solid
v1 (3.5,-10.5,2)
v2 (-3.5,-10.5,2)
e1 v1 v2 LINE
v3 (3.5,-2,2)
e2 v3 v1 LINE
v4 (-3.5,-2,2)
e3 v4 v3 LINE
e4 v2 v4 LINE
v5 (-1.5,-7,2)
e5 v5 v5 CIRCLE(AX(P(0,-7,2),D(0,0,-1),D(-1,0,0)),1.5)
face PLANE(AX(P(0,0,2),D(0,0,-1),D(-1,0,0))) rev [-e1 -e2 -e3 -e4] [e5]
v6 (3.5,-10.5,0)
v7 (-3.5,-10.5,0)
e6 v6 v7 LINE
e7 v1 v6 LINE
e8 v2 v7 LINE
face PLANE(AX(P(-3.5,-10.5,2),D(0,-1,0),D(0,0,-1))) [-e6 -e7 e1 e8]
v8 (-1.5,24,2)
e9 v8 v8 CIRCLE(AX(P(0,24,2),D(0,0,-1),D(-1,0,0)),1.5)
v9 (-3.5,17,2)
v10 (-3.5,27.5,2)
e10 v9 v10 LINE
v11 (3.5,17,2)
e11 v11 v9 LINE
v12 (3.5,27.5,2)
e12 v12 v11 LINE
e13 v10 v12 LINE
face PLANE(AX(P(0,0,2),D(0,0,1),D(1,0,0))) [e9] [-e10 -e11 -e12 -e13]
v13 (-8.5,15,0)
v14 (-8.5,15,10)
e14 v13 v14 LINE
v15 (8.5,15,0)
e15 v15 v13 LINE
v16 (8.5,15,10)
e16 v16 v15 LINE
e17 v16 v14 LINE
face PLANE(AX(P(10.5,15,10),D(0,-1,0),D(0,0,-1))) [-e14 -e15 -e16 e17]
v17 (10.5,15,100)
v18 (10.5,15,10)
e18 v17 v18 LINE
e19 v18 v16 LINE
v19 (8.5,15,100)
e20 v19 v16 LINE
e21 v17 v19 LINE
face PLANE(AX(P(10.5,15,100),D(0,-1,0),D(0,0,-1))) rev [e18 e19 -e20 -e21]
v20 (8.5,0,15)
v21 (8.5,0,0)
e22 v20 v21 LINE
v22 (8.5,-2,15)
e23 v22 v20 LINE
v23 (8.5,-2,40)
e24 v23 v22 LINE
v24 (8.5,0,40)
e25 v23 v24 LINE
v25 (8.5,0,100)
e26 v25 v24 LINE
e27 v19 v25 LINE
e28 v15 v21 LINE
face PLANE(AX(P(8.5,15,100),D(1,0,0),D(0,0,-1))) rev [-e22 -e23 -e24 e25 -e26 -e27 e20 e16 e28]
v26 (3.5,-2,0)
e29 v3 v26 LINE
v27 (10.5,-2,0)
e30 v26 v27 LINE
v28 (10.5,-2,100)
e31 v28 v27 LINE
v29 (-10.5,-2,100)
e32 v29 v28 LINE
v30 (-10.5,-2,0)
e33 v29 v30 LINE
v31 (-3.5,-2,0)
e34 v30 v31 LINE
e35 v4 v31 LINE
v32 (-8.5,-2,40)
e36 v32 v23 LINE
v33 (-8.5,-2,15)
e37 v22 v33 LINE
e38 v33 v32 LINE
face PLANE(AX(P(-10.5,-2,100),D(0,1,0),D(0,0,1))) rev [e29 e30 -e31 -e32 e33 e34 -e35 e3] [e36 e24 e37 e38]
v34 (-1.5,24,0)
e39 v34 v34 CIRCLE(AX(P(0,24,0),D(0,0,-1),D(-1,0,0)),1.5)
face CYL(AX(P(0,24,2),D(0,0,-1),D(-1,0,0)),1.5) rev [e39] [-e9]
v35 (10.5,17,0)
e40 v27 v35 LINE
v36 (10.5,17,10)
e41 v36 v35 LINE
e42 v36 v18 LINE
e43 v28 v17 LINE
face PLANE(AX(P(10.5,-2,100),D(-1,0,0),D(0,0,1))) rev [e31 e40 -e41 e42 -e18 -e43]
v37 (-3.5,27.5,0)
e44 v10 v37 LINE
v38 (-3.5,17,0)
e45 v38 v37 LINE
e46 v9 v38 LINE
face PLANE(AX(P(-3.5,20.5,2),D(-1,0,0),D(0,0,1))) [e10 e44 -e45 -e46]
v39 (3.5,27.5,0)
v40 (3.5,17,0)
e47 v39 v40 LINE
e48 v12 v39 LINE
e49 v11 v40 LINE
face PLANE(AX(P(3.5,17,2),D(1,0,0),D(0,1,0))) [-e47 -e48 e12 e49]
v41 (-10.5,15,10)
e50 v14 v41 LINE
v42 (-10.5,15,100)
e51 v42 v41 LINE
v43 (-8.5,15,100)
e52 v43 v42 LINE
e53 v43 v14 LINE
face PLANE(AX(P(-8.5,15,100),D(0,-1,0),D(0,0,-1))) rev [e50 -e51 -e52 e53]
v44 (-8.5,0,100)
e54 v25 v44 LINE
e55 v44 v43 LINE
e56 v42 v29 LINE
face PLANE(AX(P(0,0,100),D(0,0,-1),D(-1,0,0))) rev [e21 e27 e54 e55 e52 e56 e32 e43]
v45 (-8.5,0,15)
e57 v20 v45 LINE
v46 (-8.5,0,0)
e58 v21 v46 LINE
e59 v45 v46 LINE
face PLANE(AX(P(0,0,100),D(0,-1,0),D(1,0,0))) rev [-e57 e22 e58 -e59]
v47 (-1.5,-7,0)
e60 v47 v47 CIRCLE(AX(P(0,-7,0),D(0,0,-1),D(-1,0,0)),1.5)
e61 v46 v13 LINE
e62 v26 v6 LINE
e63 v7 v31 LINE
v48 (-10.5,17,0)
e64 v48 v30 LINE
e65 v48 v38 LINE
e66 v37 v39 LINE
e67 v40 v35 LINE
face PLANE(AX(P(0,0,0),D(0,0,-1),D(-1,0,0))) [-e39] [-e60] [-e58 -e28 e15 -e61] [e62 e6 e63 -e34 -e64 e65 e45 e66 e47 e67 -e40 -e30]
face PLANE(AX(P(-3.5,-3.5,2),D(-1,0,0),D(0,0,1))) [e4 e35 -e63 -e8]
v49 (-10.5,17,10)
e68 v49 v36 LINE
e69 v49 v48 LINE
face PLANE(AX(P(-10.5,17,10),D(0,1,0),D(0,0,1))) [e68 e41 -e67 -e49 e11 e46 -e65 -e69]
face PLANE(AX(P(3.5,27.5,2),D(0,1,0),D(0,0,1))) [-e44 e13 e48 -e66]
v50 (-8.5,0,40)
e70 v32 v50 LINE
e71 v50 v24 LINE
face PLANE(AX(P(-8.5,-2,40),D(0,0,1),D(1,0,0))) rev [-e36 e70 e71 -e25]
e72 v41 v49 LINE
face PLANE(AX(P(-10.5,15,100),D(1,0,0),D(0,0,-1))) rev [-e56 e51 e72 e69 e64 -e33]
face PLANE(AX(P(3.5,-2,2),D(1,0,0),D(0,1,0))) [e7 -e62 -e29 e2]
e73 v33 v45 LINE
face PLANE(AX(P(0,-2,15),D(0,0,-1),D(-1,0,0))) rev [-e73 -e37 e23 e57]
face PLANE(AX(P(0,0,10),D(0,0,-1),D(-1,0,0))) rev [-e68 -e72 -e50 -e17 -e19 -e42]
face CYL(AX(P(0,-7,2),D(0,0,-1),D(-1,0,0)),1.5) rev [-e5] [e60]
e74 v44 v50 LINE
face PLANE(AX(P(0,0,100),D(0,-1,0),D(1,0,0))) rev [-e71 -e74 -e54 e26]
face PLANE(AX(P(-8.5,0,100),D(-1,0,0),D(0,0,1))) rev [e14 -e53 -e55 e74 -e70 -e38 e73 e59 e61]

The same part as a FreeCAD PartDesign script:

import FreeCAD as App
import Part
import Sketcher
Q = App.Units.Quantity


def add_polygon(sketch, points):
    """Adds a closed chain of lines whose ends are joined by coincident constraints."""
    first, n = sketch.GeometryCount, len(points)
    for a, b in zip(points, points[1:] + points[:1]):
        sketch.addGeometry(Part.LineSegment(App.Vector(*a, 0), App.Vector(*b, 0)), False)
    for i in range(n):
        sketch.addConstraint(Sketcher.Constraint("Coincident", first + i, 2, first + (i + 1) % n, 1))

doc = App.newDocument("Part")
body = doc.addObject("PartDesign::Body", "Body")

# Sketch on XY plane
sketch1 = body.newObject("Sketcher::SketchObject", "Sketch")
sketch1.AttachmentSupport = (doc.getObject("XY_Plane"), [""])
sketch1.MapMode = "FlatFace"
add_polygon(sketch1, [(-8.5, 0), (-8.5, 15), (-10.5, 15), (-10.5, -2), (10.5, -2), (10.5, 15), (8.5, 15), (8.5, 0)])  # lines 0-7
sketch1.addConstraint([
    Sketcher.Constraint("Vertical", 0),
    Sketcher.Constraint("Horizontal", 1),
    Sketcher.Constraint("Vertical", 2),
    Sketcher.Constraint("Horizontal", 3),
    Sketcher.Constraint("Vertical", 4),
    Sketcher.Constraint("Horizontal", 5),
    Sketcher.Constraint("Vertical", 6),
    Sketcher.Constraint("Horizontal", 7),
    Sketcher.Constraint("Symmetric", 6, 2, 7, 2, -1, 1),
    Sketcher.Constraint("Symmetric", 1, 2, 4, 2, -2),
    Sketcher.Constraint("Equal", 7, 2),
    Sketcher.Constraint("DistanceX", 1, 2, 1, 1, Q("2 mm")),
    Sketcher.Constraint("DistanceX", 3, 1, 3, 2, Q("21 mm")),
    Sketcher.Constraint("DistanceY", 0, 1, 0, 2, Q("15 mm")),
])
pad1 = body.newObject("PartDesign::Pad", "Pad")
pad1.Profile = sketch1
pad1.Length = 100

# Sketch on XZ plane
sketch2 = body.newObject("Sketcher::SketchObject", "Sketch001")
sketch2.AttachmentSupport = (doc.getObject("XZ_Plane"), [""])
sketch2.MapMode = "FlatFace"
add_polygon(sketch2, [(-8, 15), (-8, 40), (8, 40), (8, 15)])  # lines 0-3
sketch2.addConstraint([
    Sketcher.Constraint("Vertical", 0),
    Sketcher.Constraint("Horizontal", 1),
    Sketcher.Constraint("Vertical", 2),
    Sketcher.Constraint("Horizontal", 3),
    Sketcher.Constraint("DistanceX", 1, 1, 1, 2, Q("17 mm")),
    Sketcher.Constraint("DistanceY", 0, 1, 0, 2, Q("25 mm")),
    Sketcher.Constraint("DistanceY", -1, 1, 0, 2, Q("40 mm")),
    Sketcher.Constraint("DistanceX", 0, 2, -1, 1, Q("8.5 mm")),
])
pocket1 = body.newObject("PartDesign::Pocket", "Pocket")
pocket1.Profile = sketch2
pocket1.Type = "ThroughAll"
pocket1.Reversed = True

# Sketch on XY plane
sketch3 = body.newObject("Sketcher::SketchObject", "Sketch002")
sketch3.AttachmentSupport = (doc.getObject("XY_Plane"), [""])
sketch3.MapMode = "FlatFace"
add_polygon(sketch3, [(10.5, 17), (10.5, 15), (-10.5, 15), (-10.5, 17)])  # lines 0-3
sketch3.addConstraint([
    Sketcher.Constraint("Vertical", 0),
    Sketcher.Constraint("Horizontal", 1),
    Sketcher.Constraint("Vertical", 2),
    Sketcher.Constraint("Horizontal", 3),
    Sketcher.Constraint("DistanceX", 1, 2, 1, 1, Q("21 mm")),
    Sketcher.Constraint("DistanceY", 0, 2, 0, 1, Q("2 mm")),
    Sketcher.Constraint("DistanceY", -1, 1, 0, 2, Q("15 mm")),
    Sketcher.Constraint("DistanceX", -1, 1, 0, 2, Q("10.5 mm")),
])
pad2 = body.newObject("PartDesign::Pad", "Pad001")
pad2.Profile = sketch3
pad2.Length = 10

# Sketch on XY plane
sketch4 = body.newObject("Sketcher::SketchObject", "Sketch003")
sketch4.AttachmentSupport = (doc.getObject("XY_Plane"), [""])
sketch4.MapMode = "FlatFace"
add_polygon(sketch4, [(-3.5, 27.5), (3.5, 27.5), (3.5, 17), (-3.5, 17)])  # lines 0-3
sketch4.addGeometry(Part.Circle(App.Vector(0, 24, 0), App.Vector(0, 0, 1), 1.5), False)  # 4
add_polygon(sketch4, [(-3.5, -10.5), (-3.5, -2), (3.5, -2), (3.5, -10.5)])  # lines 5-8
sketch4.addGeometry(Part.Circle(App.Vector(0, -7, 0), App.Vector(0, 0, 1), 1.5), False)  # 9
sketch4.addConstraint([
    Sketcher.Constraint("Horizontal", 0),
    Sketcher.Constraint("Vertical", 1),
    Sketcher.Constraint("Horizontal", 2),
    Sketcher.Constraint("Vertical", 3),
    Sketcher.Constraint("Vertical", 5),
    Sketcher.Constraint("Horizontal", 6),
    Sketcher.Constraint("Vertical", 7),
    Sketcher.Constraint("Horizontal", 8),
    Sketcher.Constraint("Equal", 4, 9),
    Sketcher.Constraint("PointOnObject", 4, 3, -2),
    Sketcher.Constraint("PointOnObject", 9, 3, -2),
    Sketcher.Constraint("Vertical", 3, 2, 5, 2),
    Sketcher.Constraint("Vertical", 1, 2, 6, 2),
    Sketcher.Constraint("Diameter", 4, Q("3 mm")),
    Sketcher.Constraint("DistanceX", 0, 1, 0, 2, Q("7 mm")),
    Sketcher.Constraint("DistanceY", 1, 2, 1, 1, Q("10.5 mm")),
    Sketcher.Constraint("DistanceY", 5, 1, 5, 2, Q("8.5 mm")),
    Sketcher.Constraint("DistanceY", -1, 1, 4, 3, Q("24 mm")),
    Sketcher.Constraint("DistanceY", 9, 3, -1, 1, Q("7 mm")),
    Sketcher.Constraint("DistanceY", -1, 1, 1, 2, Q("17 mm")),
    Sketcher.Constraint("DistanceY", 5, 2, -1, 1, Q("2 mm")),
    Sketcher.Constraint("DistanceX", -1, 1, 0, 2, Q("3.5 mm")),
])
pad3 = body.newObject("PartDesign::Pad", "Pad002")
pad3.Profile = sketch4
pad3.Length = 2

doc.recompute()
